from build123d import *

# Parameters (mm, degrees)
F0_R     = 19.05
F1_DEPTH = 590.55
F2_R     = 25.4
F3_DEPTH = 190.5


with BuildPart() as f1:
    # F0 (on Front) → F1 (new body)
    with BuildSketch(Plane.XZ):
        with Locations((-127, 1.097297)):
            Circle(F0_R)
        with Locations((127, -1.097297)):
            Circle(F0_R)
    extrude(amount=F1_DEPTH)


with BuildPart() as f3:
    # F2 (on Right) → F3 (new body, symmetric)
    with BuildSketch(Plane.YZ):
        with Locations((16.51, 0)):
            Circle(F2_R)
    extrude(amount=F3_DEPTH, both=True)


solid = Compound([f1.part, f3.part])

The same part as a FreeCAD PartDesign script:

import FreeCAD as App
import Part
import Sketcher
Q = App.Units.Quantity

doc = App.newDocument("Part")
params = doc.addObject("Spreadsheet::Sheet", "Params")
for row, (alias, value) in enumerate([
    ("sketch1_diameter", "1.5 in"),
    ("pad1_length", "23.25 in"),
    ("sketch2_diameter", "2 in"),
    ("pad2_length", "15 in"),
], start=1):
    params.set(f"A{row}", alias)
    params.set(f"B{row}", "=" + value)
    params.setAlias(f"B{row}", alias)

body = doc.addObject("PartDesign::Body", "Body")
body.AllowCompound = True

sketch1 = body.newObject("Sketcher::SketchObject", "Sketch")
sketch1.AttachmentSupport = (doc.getObject("XZ_Plane"), [""])
sketch1.MapMode = "FlatFace"
sketch1.addGeometry([
    Part.Circle(App.Vector(-127, 1, 0), App.Vector(0, 0, 1), 19),
    Part.Circle(App.Vector(127, -1, 0), App.Vector(0, 0, 1), 19),
], False)
sketch1.addConstraint([
    Sketcher.Constraint("Equal", 0, 1),
    Sketcher.Constraint("Symmetric", 0, 3, 1, 3, -1, 1),
    Sketcher.Constraint("Diameter", 0, Q("1.5 in")),
    Sketcher.Constraint("DistanceX", 0, 3, -1, 1, Q("5 in")),
    Sketcher.Constraint("DistanceY", -1, 1, 0, 3, 1.097297),
])
sketch1.setExpression("Constraints[2]", "Params.sketch1_diameter")
pad1 = body.newObject("PartDesign::Pad", "Pad")
pad1.Profile = sketch1
pad1.setExpression("Length", "Params.pad1_length")
body2 = doc.addObject("PartDesign::Body", "Body001")

sketch2 = body2.newObject("Sketcher::SketchObject", "Sketch001")
sketch2.AttachmentSupport = (doc.getObject("YZ_Plane001"), [""])
sketch2.MapMode = "FlatFace"
sketch2.addGeometry(Part.Circle(App.Vector(17, 0, 0), App.Vector(0, 0, 1), 25), False)
sketch2.addConstraint([
    Sketcher.Constraint("PointOnObject", 0, 3, -1),
    Sketcher.Constraint("Diameter", 0, Q("2 in")),
    Sketcher.Constraint("DistanceX", -1, 1, 0, 3, Q("0.65 in")),
])
sketch2.setExpression("Constraints[1]", "Params.sketch2_diameter")
pad2 = body2.newObject("PartDesign::Pad", "Pad001")
pad2.Profile = sketch2
pad2.setExpression("Length", "Params.pad2_length")
pad2.Midplane = True

doc.recompute()
